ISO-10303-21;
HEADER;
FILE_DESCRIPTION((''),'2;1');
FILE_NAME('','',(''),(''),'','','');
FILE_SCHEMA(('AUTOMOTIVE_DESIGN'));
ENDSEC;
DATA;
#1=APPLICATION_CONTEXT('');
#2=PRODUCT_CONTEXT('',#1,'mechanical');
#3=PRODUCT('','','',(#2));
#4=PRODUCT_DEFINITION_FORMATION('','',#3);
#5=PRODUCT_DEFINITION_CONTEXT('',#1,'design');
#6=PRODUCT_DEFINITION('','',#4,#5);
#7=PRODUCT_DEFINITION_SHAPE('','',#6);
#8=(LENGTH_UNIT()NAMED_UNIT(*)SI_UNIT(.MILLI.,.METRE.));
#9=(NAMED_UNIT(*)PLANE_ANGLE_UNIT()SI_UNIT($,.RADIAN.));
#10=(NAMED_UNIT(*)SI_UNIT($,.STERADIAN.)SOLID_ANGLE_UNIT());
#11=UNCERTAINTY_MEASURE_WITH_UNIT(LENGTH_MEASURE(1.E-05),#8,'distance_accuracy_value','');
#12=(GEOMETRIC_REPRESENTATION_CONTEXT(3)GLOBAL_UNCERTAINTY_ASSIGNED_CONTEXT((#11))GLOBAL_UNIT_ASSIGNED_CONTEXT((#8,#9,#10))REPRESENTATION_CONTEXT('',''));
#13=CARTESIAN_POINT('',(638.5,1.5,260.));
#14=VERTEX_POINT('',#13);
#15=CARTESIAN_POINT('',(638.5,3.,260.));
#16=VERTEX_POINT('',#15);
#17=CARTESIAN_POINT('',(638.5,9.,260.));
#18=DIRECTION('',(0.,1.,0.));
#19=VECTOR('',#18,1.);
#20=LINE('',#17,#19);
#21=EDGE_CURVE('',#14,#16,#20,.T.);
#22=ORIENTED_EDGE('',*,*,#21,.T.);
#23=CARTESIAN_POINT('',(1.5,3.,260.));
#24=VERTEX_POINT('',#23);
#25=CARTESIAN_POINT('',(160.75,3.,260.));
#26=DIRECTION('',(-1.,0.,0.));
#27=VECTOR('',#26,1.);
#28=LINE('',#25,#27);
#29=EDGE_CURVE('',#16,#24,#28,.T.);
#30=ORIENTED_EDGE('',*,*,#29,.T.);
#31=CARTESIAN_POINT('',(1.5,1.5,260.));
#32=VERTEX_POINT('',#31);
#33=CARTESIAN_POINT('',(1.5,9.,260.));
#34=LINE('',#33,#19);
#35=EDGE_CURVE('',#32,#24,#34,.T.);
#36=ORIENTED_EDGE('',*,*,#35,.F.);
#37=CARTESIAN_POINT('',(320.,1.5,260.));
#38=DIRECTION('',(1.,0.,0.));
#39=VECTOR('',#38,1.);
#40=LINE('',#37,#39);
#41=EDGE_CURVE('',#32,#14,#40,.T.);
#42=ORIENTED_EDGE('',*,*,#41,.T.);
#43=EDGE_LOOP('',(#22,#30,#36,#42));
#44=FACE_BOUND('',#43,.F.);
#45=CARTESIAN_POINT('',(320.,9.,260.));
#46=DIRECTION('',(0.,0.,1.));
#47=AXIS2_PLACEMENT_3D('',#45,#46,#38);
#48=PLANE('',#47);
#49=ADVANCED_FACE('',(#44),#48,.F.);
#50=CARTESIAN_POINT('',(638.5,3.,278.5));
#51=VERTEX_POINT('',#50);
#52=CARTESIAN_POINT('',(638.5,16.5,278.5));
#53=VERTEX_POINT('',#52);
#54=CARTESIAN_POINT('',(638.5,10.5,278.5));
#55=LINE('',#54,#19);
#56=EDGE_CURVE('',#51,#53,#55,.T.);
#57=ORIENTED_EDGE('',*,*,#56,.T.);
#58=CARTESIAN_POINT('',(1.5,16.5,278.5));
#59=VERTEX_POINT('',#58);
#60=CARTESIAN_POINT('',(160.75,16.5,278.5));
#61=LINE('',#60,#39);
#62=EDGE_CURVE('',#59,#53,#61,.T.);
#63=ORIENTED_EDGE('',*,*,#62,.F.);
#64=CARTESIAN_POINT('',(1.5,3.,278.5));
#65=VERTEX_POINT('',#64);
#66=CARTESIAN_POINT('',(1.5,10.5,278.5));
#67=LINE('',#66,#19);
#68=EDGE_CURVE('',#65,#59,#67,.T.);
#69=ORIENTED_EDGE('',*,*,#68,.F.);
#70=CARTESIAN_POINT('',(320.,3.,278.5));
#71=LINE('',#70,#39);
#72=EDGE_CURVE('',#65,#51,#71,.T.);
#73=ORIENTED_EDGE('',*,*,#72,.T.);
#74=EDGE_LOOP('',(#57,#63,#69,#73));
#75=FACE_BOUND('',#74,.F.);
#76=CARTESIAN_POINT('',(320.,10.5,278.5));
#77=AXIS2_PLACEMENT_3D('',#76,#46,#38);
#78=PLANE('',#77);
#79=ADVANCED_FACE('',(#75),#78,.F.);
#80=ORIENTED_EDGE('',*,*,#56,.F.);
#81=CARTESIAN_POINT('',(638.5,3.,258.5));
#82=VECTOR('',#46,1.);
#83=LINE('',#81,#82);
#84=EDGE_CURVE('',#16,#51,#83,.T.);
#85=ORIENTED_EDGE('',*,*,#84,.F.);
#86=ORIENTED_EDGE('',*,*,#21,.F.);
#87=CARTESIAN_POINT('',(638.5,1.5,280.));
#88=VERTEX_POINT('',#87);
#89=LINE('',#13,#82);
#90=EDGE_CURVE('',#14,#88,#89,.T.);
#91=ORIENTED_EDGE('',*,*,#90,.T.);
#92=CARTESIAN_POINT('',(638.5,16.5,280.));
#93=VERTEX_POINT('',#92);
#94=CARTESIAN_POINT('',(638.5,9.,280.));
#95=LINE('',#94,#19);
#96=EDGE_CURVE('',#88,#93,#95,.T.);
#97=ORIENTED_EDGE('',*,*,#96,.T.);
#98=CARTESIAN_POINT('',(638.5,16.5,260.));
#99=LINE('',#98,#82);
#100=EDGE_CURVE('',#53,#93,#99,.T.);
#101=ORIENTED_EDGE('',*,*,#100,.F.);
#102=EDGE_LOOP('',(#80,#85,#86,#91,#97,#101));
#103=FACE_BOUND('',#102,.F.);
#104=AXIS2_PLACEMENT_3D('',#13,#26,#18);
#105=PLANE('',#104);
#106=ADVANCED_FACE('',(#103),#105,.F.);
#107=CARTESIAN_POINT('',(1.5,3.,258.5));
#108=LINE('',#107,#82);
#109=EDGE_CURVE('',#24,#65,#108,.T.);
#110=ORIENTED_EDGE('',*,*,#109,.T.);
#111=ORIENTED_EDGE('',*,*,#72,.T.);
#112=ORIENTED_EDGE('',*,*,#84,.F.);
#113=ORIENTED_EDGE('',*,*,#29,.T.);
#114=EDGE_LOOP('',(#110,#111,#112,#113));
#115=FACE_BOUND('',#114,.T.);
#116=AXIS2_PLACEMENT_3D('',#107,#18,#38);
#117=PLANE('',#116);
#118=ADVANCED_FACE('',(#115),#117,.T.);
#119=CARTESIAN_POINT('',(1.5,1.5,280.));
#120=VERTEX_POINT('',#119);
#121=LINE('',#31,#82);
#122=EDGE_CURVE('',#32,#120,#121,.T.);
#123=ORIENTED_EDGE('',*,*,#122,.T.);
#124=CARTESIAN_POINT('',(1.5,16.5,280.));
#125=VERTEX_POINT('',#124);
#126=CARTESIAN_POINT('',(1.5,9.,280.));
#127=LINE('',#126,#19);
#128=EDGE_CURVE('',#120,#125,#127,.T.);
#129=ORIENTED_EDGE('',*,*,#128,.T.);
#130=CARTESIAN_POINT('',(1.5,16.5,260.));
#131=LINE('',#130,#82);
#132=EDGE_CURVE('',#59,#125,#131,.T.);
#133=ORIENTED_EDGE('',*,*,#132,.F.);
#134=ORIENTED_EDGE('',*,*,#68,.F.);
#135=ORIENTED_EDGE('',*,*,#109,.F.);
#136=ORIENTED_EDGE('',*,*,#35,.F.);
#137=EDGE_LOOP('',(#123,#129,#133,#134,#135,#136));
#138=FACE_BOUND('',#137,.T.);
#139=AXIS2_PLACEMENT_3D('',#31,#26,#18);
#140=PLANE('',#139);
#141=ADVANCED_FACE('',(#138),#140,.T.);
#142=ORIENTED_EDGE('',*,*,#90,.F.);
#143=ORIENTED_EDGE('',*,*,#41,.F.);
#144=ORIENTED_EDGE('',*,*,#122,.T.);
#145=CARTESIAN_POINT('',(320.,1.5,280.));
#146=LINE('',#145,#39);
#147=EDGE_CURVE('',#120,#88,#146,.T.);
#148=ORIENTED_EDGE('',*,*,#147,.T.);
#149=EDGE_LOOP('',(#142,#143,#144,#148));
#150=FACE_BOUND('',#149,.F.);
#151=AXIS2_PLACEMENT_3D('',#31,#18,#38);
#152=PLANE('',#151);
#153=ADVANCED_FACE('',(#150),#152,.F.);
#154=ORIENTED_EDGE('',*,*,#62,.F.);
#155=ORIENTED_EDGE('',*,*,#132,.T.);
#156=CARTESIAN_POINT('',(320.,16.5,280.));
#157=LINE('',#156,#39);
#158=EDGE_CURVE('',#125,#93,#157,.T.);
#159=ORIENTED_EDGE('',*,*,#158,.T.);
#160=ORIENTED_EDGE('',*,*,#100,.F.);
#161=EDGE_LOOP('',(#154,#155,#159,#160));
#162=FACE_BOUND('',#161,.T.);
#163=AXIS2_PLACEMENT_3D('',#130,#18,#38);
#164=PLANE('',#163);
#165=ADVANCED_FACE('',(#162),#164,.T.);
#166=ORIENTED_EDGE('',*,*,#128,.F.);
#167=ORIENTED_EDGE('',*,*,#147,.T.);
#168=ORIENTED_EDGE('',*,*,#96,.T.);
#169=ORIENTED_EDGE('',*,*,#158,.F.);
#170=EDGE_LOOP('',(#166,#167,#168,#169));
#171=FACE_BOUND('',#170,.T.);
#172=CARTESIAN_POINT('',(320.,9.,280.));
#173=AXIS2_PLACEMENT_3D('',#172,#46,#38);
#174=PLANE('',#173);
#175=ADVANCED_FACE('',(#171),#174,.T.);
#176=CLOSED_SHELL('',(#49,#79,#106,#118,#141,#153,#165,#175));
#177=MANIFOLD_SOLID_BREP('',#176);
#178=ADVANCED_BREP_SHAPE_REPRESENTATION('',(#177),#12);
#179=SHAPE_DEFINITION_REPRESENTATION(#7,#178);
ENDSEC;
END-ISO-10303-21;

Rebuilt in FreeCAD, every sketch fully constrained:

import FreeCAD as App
import Part
import Sketcher
Q = App.Units.Quantity

doc = App.newDocument("Part")
body = doc.addObject("PartDesign::Body", "Body")

sketch1 = body.newObject("Sketcher::SketchObject", "Sketch")
sketch1.AttachmentSupport = (doc.getObject("XY_Plane"), [""])
sketch1.MapMode = "FlatFace"
sketch1.AttachmentOffset = App.Placement(App.Vector(0, 0, -1.5), App.Rotation())
sketch1.addGeometry([
    Part.LineSegment(App.Vector(2, 16, 0), App.Vector(2, 2, 0)),
    Part.LineSegment(App.Vector(2, 2, 0), App.Vector(638, 2, 0)),
    Part.LineSegment(App.Vector(638, 2, 0), App.Vector(638, 16, 0)),
    Part.LineSegment(App.Vector(638, 16, 0), App.Vector(2, 16, 0)),
], False)
sketch1.addConstraint([
    Sketcher.Constraint("Coincident", 0, 2, 1, 1),
    Sketcher.Constraint("Coincident", 1, 2, 2, 1),
    Sketcher.Constraint("Coincident", 2, 2, 3, 1),
    Sketcher.Constraint("Coincident", 3, 2, 0, 1),
    Sketcher.Constraint("Vertical", 0),
    Sketcher.Constraint("Horizontal", 1),
    Sketcher.Constraint("Vertical", 2),
    Sketcher.Constraint("Horizontal", 3),
    Sketcher.Constraint("DistanceX", 1, 1, 1, 2, Q("637 mm")),
    Sketcher.Constraint("DistanceY", 0, 2, 0, 1, Q("15 mm")),
    Sketcher.Constraint("DistanceX", -1, 1, 0, 2, Q("1.5 mm")),
    Sketcher.Constraint("DistanceY", -1, 1, 0, 2, Q("1.5 mm")),
])
pad1 = body.newObject("PartDesign::Pad", "Pad")
pad1.Profile = sketch1
pad1.Length = 20
body2 = doc.addObject("PartDesign::Body", "Body001")

sketch2 = body2.newObject("Sketcher::SketchObject", "Sketch001")
sketch2.AttachmentSupport = (doc.getObject("XY_Plane001"), [""])
sketch2.MapMode = "FlatFace"
sketch2.addGeometry([
    Part.LineSegment(App.Vector(2, 15, 0), App.Vector(2, 0, 0)),
    Part.LineSegment(App.Vector(2, 0, 0), App.Vector(638, 0, 0)),
    Part.LineSegment(App.Vector(638, 0, 0), App.Vector(638, 15, 0)),
    Part.LineSegment(App.Vector(638, 15, 0), App.Vector(2, 15, 0)),
], False)
sketch2.addConstraint([
    Sketcher.Constraint("Coincident", 0, 2, 1, 1),
    Sketcher.Constraint("Coincident", 1, 2, 2, 1),
    Sketcher.Constraint("Coincident", 2, 2, 3, 1),
    Sketcher.Constraint("Coincident", 3, 2, 0, 1),
    Sketcher.Constraint("Vertical", 0),
    Sketcher.Constraint("Horizontal", 1),
    Sketcher.Constraint("Vertical", 2),
    Sketcher.Constraint("Horizontal", 3),
    Sketcher.Constraint("PointOnObject", 0, 2, -1),
    Sketcher.Constraint("DistanceX", 1, 1, 1, 2, Q("637 mm")),
    Sketcher.Constraint("DistanceY", 0, 2, 0, 1, Q("15 mm")),
    Sketcher.Constraint("DistanceX", -1, 1, 0, 2, Q("1.5 mm")),
])
pad2 = body2.newObject("PartDesign::Pad", "Pad001")
pad2.Profile = sketch2
pad2.Length = 20
doc.recompute()

boolean = body2.newObject("PartDesign::Boolean", "Boolean")
boolean.Type = "Cut"
boolean.addObjects([body])
body3 = doc.addObject("PartDesign::Body", "Body002")
doc.recompute()

body2.Placement = App.Placement(App.Vector(0, 1.5, 250), App.Rotation(App.Vector(0, 0, 1), 0))
boolean2 = body3.newObject("PartDesign::Boolean", "Boolean001")
boolean2.Type = "Fuse"
boolean2.addObjects([body2])
body4 = doc.addObject("PartDesign::Body", "Body003")
doc.recompute()

body3.Placement = App.Placement(App.Vector(0, -1.5, -250), App.Rotation(App.Vector(0, 0, 1), 0))
boolean3 = body4.newObject("PartDesign::Boolean", "Boolean002")
boolean3.Type = "Fuse"
boolean3.addObjects([body3])

sketch3 = body4.newObject("Sketcher::SketchObject", "Sketch002")
sketch3.AttachmentSupport = (doc.getObject("XZ_Plane003"), [""])
sketch3.MapMode = "FlatFace"
sketch3.AttachmentOffset = App.Placement(App.Vector(0, 0, 1.5), App.Rotation())
sketch3.addGeometry(Part.Circle(App.Vector(-7.8, 9.2, 0), App.Vector(0, 0, 1), 2), False)
sketch3.addConstraint([
    Sketcher.Constraint("Diameter", 0, Q("4.1 mm")),
    Sketcher.Constraint("DistanceX", 0, 3, -1, 1, Q("7.75 mm")),
    Sketcher.Constraint("DistanceY", -1, 1, 0, 3, Q("9.25 mm")),
])
pocket1 = body4.newObject("PartDesign::Pocket", "Pocket")
pocket1.Profile = sketch3
pocket1.Type = "ThroughAll"
doc.recompute()

datumplane = body4.newObject("PartDesign::Plane", "DatumPlane")
datumplane.AttachmentSupport = (doc.getObject("YZ_Plane003"), [""])
datumplane.MapMode = "FlatFace"
datumplane.AttachmentOffset = App.Placement(App.Vector(0, 0, 320), App.Rotation())
mirrored = body4.newObject("PartDesign::Mirrored", "Mirrored")
mirrored.Originals = [pocket1]
mirrored.MirrorPlane = (datumplane, [""])
body4.Tip = mirrored
body5 = doc.addObject("PartDesign::Body", "Body004")
doc.recompute()

body4.Placement = App.Placement(App.Vector(0, 1.5, 260), App.Rotation(App.Vector(0, 0, 1), 0))
boolean4 = body5.newObject("PartDesign::Boolean", "Boolean003")
boolean4.Type = "Fuse"
boolean4.addObjects([body4])

doc.recompute()
